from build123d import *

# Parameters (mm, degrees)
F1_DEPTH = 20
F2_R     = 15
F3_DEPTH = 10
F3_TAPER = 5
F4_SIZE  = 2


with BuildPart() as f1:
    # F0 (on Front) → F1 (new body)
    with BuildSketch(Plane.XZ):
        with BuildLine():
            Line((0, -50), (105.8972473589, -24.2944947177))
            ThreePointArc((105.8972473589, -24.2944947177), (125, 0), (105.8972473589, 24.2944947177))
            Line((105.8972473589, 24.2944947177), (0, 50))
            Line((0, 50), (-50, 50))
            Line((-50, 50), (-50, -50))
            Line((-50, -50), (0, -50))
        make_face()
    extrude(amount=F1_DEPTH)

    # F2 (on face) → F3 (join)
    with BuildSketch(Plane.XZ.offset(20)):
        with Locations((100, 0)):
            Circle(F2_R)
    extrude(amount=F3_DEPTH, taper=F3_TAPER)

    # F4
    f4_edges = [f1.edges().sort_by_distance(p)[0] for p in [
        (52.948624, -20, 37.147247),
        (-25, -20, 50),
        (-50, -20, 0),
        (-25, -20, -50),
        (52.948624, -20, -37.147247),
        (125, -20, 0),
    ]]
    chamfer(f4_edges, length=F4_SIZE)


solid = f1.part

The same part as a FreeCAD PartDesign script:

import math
import FreeCAD as App
import Part
import Sketcher


def edges_at(feature, points):
    """Names of the edges that pass closest to the given points."""
    edges = feature.Shape.Edges
    near = lambda p: min(range(len(edges)), key=lambda i: edges[i].distToShape(Part.Vertex(*p))[0])
    return sorted({f"Edge{near(p) + 1}" for p in points})

doc = App.newDocument("Part")
body = doc.addObject("PartDesign::Body", "Body")

sketch1 = body.newObject("Sketcher::SketchObject", "Sketch")
sketch1.AttachmentSupport = (doc.getObject("XZ_Plane"), [""])
sketch1.MapMode = "FlatFace"
sketch1.addGeometry([
    Part.LineSegment(App.Vector(0, -50, 0), App.Vector(105.897247, -24.294495, 0)),
    Part.ArcOfCircle(Part.Circle(App.Vector(100, 0, 0), App.Vector(0, 0, 1), 25), math.radians(-76.355915), math.radians(76.355915)),
    Part.LineSegment(App.Vector(105.897247, 24.294495, 0), App.Vector(0, 50, 0)),
    Part.LineSegment(App.Vector(0, 50, 0), App.Vector(-50, 50, 0)),
    Part.LineSegment(App.Vector(-50, 50, 0), App.Vector(-50, -50, 0)),
    Part.LineSegment(App.Vector(-50, -50, 0), App.Vector(0, -50, 0)),
], False)
sketch1.addConstraint([
    Sketcher.Constraint("Tangent", 0, 2, 1, 1),
    Sketcher.Constraint("Tangent", 1, 2, 2, 1),
    Sketcher.Constraint("Coincident", 2, 2, 3, 1),
    Sketcher.Constraint("Coincident", 3, 2, 4, 1),
    Sketcher.Constraint("Coincident", 4, 2, 5, 1),
    Sketcher.Constraint("Coincident", 5, 2, 0, 1),
    Sketcher.Constraint("Horizontal", 3),
    Sketcher.Constraint("Vertical", 4),
    Sketcher.Constraint("Horizontal", 5),
    Sketcher.Constraint("Symmetric", 2, 2, 5, 2, -1, 1),
    Sketcher.Constraint("Symmetric", 0, 2, 1, 2, -1),
    Sketcher.Constraint("Radius", 1, 25.0),
    Sketcher.Constraint("DistanceX", 3, 2, 3, 1, 50.0),
    Sketcher.Constraint("DistanceY", 4, 2, 4, 1, 100.0),
    Sketcher.Constraint("DistanceX", -1, 1, 1, 3, 100.0),
])
pad1 = body.newObject("PartDesign::Pad", "Pad")
pad1.Profile = sketch1
pad1.Length = 20

sketch2 = body.newObject("Sketcher::SketchObject", "Sketch001")
sketch2.AttachmentSupport = (doc.getObject("XZ_Plane"), [""])
sketch2.MapMode = "FlatFace"
sketch2.AttachmentOffset = App.Placement(App.Vector(0, 0, 20), App.Rotation())
sketch2.addGeometry(Part.Circle(App.Vector(100, 0, 0), App.Vector(0, 0, 1), 15), False)
sketch2.addConstraint([
    Sketcher.Constraint("PointOnObject", 0, 3, -1),
    Sketcher.Constraint("Diameter", 0, 30.0),
    Sketcher.Constraint("DistanceX", -1, 1, 0, 3, 100.0),
])
pad2 = body.newObject("PartDesign::Pad", "Pad001")
pad2.Profile = sketch2
pad2.Length = 10
pad2.TaperAngle = -5
doc.recompute()

chamfer = body.newObject("PartDesign::Chamfer", "Chamfer")
chamfer.Base = (pad2, edges_at(pad2, [
    (52.949, -20, 37.147),
    (-25, -20, 50),
    (-50, -20, 0),
    (-25, -20, -50),
    (52.949, -20, -37.147),
    (125, -20, 0),
]))
chamfer.Size = 2

doc.recompute()
